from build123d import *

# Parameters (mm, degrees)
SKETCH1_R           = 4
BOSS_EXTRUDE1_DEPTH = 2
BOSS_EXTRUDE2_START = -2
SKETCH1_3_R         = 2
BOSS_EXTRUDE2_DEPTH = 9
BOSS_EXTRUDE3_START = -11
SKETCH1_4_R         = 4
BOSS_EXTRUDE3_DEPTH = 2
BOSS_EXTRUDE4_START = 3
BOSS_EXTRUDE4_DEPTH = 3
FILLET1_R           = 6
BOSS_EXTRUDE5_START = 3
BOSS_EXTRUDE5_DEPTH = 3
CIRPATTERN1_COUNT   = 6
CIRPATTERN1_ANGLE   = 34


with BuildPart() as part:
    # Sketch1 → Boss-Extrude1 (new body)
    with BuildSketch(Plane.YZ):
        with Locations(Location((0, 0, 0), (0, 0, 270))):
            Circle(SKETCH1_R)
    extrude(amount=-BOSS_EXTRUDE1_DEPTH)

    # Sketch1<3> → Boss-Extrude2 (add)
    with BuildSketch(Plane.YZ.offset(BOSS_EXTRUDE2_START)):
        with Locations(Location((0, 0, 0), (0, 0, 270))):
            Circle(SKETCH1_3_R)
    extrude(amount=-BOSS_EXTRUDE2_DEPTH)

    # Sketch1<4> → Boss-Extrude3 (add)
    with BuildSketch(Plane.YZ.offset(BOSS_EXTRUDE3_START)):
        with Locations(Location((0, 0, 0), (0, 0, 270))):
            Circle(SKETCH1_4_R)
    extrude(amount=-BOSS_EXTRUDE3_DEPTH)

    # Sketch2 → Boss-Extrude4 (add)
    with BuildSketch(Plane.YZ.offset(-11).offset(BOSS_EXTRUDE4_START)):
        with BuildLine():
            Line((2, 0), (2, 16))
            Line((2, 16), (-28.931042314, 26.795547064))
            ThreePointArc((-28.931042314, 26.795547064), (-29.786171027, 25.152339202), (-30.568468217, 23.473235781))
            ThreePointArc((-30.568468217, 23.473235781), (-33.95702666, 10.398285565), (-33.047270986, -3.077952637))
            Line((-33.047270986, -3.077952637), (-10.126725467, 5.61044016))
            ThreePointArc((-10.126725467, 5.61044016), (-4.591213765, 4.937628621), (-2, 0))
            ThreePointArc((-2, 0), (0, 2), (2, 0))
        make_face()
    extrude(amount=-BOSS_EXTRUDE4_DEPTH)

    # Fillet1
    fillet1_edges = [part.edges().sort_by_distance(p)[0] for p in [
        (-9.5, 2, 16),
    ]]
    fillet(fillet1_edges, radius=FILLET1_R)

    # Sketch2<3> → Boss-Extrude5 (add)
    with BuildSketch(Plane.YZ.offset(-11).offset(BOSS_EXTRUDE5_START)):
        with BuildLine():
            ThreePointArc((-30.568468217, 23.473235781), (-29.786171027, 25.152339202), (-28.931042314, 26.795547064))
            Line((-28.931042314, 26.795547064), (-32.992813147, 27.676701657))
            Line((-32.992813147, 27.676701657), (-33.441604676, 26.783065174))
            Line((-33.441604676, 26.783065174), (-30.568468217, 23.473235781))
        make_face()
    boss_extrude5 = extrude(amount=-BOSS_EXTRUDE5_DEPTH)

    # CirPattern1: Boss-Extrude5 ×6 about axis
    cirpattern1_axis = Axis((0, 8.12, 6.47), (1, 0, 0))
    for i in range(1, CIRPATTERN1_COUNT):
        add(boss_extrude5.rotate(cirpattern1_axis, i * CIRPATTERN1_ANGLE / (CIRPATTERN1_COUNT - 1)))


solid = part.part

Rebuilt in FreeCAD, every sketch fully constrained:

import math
import FreeCAD as App
import Part
import Sketcher
from FreeCAD import Vector
Q = App.Units.Quantity


def edges_at(feature, points):
    """Names of the edges that pass closest to the given points."""
    edges = feature.Shape.Edges
    near = lambda p: min(range(len(edges)), key=lambda i: edges[i].distToShape(Part.Vertex(*p))[0])
    return sorted({f"Edge{near(p) + 1}" for p in points})

doc = App.newDocument("Part")
body = doc.addObject("PartDesign::Body", "Body")

sketch1 = body.newObject("Sketcher::SketchObject", "Sketch")
sketch1.AttachmentSupport = (doc.getObject("YZ_Plane"), [""])
sketch1.MapMode = "FlatFace"
sketch1.addGeometry(Part.Circle(Vector(0, 0, 0), Vector(0, 0, 1), 4), False)
sketch1.addConstraint(Sketcher.Constraint("Coincident", 0, 3, -1, 1))
sketch1.addConstraint(Sketcher.Constraint("Diameter", 0, Q("8 mm")))
pad1 = body.newObject("PartDesign::Pad", "Pad")
pad1.Profile = sketch1
pad1.Length = 2
pad1.Reversed = True

sketch2 = body.newObject("Sketcher::SketchObject", "Sketch001")
sketch2.AttachmentSupport = (doc.getObject("YZ_Plane"), [""])
sketch2.MapMode = "FlatFace"
sketch2.AttachmentOffset = App.Placement(Vector(0, 0, -2), App.Rotation())
sketch2.addGeometry(Part.Circle(Vector(0, 0, 0), Vector(0, 0, 1), 2), False)
sketch2.addConstraint(Sketcher.Constraint("Coincident", 0, 3, -1, 1))
sketch2.addConstraint(Sketcher.Constraint("Diameter", 0, Q("4 mm")))
pad2 = body.newObject("PartDesign::Pad", "Pad001")
pad2.Profile = sketch2
pad2.Length = 9
pad2.Reversed = True

sketch3 = body.newObject("Sketcher::SketchObject", "Sketch002")
sketch3.AttachmentSupport = (doc.getObject("YZ_Plane"), [""])
sketch3.MapMode = "FlatFace"
sketch3.AttachmentOffset = App.Placement(Vector(0, 0, -11), App.Rotation())
sketch3.addGeometry(Part.Circle(Vector(0, 0, 0), Vector(0, 0, 1), 4), False)
sketch3.addConstraint(Sketcher.Constraint("Coincident", 0, 3, -1, 1))
sketch3.addConstraint(Sketcher.Constraint("Diameter", 0, Q("8 mm")))
pad3 = body.newObject("PartDesign::Pad", "Pad002")
pad3.Profile = sketch3
pad3.Length = 2
pad3.Reversed = True

sketch4 = body.newObject("Sketcher::SketchObject", "Sketch003")
sketch4.AttachmentSupport = (doc.getObject("YZ_Plane"), [""])
sketch4.MapMode = "FlatFace"
sketch4.AttachmentOffset = App.Placement(Vector(0, 0, -8), App.Rotation())
sketch4.addGeometry(Part.LineSegment(Vector(2, 0, 0), Vector(2, 16, 0)), False)
sketch4.addGeometry(Part.LineSegment(Vector(2, 16, 0), Vector(-28.9, 26.8, 0)), False)
sketch4.addGeometry(Part.ArcOfCircle(Part.Circle(Vector(8.1, 6.5, 0), Vector(0, 0, 1), 42.3), math.radians(151.25), math.radians(156.27)), False)
sketch4.addGeometry(Part.ArcOfCircle(Part.Circle(Vector(8.1, 6.5, 0), Vector(0, 0, 1), 42.3), math.radians(156), math.radians(193)), False)
sketch4.addGeometry(Part.LineSegment(Vector(-33, -3.1, 0), Vector(-10.1, 5.6, 0)), False)
sketch4.addGeometry(Part.ArcOfCircle(Part.Circle(Vector(-8, 0, 0), Vector(0, 0, 1), 6), math.radians(0), math.radians(111)), False)
sketch4.addGeometry(Part.ArcOfCircle(Part.Circle(Vector(0, 0, 0), Vector(0, 0, 1), 2), math.radians(0), math.radians(180)), False)
sketch4.addConstraint(Sketcher.Constraint("Coincident", 0, 2, 1, 1))
sketch4.addConstraint(Sketcher.Constraint("Coincident", 1, 2, 2, 1))
sketch4.addConstraint(Sketcher.Constraint("Tangent", 2, 2, 3, 1))
sketch4.addConstraint(Sketcher.Constraint("Coincident", 3, 2, 4, 1))
sketch4.addConstraint(Sketcher.Constraint("Tangent", 4, 2, 5, 2))
sketch4.addConstraint(Sketcher.Constraint("Tangent", 5, 1, 6, 2))
sketch4.addConstraint(Sketcher.Constraint("Tangent", 6, 1, 0, 1))
sketch4.addConstraint(Sketcher.Constraint("Vertical", 0))
sketch4.addConstraint(Sketcher.Constraint("Coincident", 6, 3, -1, 1))
sketch4.addConstraint(Sketcher.Constraint("Equal", 2, 3))
sketch4.addConstraint(Sketcher.Constraint("PointOnObject", 5, 3, -1))
sketch4.addConstraint(Sketcher.Constraint("Radius", 5, Q("6 mm")))
sketch4.addConstraint(Sketcher.Constraint("Radius", 6, Q("2 mm")))
sketch4.addConstraint(Sketcher.Constraint("DistanceY", 0, 1, 0, 2, Q("16 mm")))
sketch4.addConstraint(Sketcher.Constraint("Radius", 2, Q("42.26 mm")))
sketch4.addConstraint(Sketcher.Constraint("Angle", 1, Q("160.76 deg")))
sketch4.addConstraint(Sketcher.Constraint("Angle", 4, Q("20.76 deg")))
sketch4.addConstraint(Sketcher.Constraint("DistanceX", -1, 1, 2, 3, Q("8.12 mm")))
sketch4.addConstraint(Sketcher.Constraint("DistanceY", -1, 1, 2, 3, Q("6.47 mm")))
sketch4.addConstraint(Sketcher.Constraint("DistanceX", 2, 2, -1, 1, Q("30.568468 mm")))
pad4 = body.newObject("PartDesign::Pad", "Pad003")
pad4.Profile = sketch4
pad4.Length = 3
pad4.Reversed = True
doc.recompute()

fillet = body.newObject("PartDesign::Fillet", "Fillet")
fillet.Base = (pad4, edges_at(pad4, [(-9.5, 2, 16)]))
fillet.Radius = 6

sketch5 = body.newObject("Sketcher::SketchObject", "Sketch004")
sketch5.AttachmentSupport = (doc.getObject("YZ_Plane"), [""])
sketch5.MapMode = "FlatFace"
sketch5.AttachmentOffset = App.Placement(Vector(0, 0, -8), App.Rotation())
sketch5.addGeometry(Part.ArcOfCircle(Part.Circle(Vector(8.1, 6.5, 0), Vector(0, 0, 1), 42.3), math.radians(151.25), math.radians(156.27)), False)
sketch5.addGeometry(Part.LineSegment(Vector(-28.9, 26.8, 0), Vector(-33, 27.7, 0)), False)
sketch5.addGeometry(Part.LineSegment(Vector(-33, 27.7, 0), Vector(-33.4, 26.8, 0)), False)
sketch5.addGeometry(Part.LineSegment(Vector(-33.4, 26.8, 0), Vector(-30.6, 23.5, 0)), False)
sketch5.addConstraint(Sketcher.Constraint("Coincident", 0, 1, 1, 1))
sketch5.addConstraint(Sketcher.Constraint("Coincident", 1, 2, 2, 1))
sketch5.addConstraint(Sketcher.Constraint("Coincident", 2, 2, 3, 1))
sketch5.addConstraint(Sketcher.Constraint("Coincident", 3, 2, 0, 2))
sketch5.addConstraint(Sketcher.Constraint("Radius", 0, Q("42.26 mm")))
sketch5.addConstraint(Sketcher.Constraint("Distance", 2, Q("1 mm")))
sketch5.addConstraint(Sketcher.Constraint("Angle", 1, Q("167.76 deg")))
sketch5.addConstraint(Sketcher.Constraint("Angle", 3, Q("-49.04 deg")))
sketch5.addConstraint(Sketcher.Constraint("DistanceX", -1, 1, 0, 3, Q("8.12 mm")))
sketch5.addConstraint(Sketcher.Constraint("DistanceY", -1, 1, 0, 3, Q("6.47 mm")))
sketch5.addConstraint(Sketcher.Constraint("DistanceY", -1, 1, 1, 2, Q("27.676702 mm")))
sketch5.addConstraint(Sketcher.Constraint("Distance", 1, Q("4.15625 mm")))
sketch5.addConstraint(Sketcher.Constraint("Distance", 3, Q("4.382908 mm")))
pad5 = body.newObject("PartDesign::Pad", "Pad004")
pad5.Profile = sketch5
pad5.Length = 3
pad5.Reversed = True
doc.recompute()

datumline = body.newObject("PartDesign::Line", "DatumLine")
datumline.Placement = App.Placement(Vector(0, 8.12, 6.47), App.Rotation(Vector(0, 0, 1), Vector(1, 0, 0)))
polarpattern = body.newObject("PartDesign::PolarPattern", "PolarPattern")
polarpattern.Originals = [pad5]
polarpattern.Axis = (datumline, [""])
polarpattern.Angle = 34
polarpattern.Occurrences = 6
body.Tip = polarpattern

doc.recompute()
